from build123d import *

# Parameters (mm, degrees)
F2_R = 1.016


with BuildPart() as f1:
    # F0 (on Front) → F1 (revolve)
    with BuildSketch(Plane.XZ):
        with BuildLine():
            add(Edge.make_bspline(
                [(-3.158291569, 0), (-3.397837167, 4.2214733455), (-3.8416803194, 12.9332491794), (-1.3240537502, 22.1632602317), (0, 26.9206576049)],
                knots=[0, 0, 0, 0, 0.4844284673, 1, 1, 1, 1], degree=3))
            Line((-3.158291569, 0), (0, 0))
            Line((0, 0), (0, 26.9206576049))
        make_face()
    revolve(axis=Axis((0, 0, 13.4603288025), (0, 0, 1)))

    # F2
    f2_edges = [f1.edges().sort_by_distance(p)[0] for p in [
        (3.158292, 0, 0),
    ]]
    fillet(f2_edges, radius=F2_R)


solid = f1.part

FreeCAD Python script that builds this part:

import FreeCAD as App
import Part
import Sketcher

V = App.Vector
Q = App.Units.Quantity


def edges_at(feature, points):
    """Names of the edges that pass closest to the given points."""
    edges = feature.Shape.Edges
    near = lambda p: min(range(len(edges)), key=lambda i: edges[i].distToShape(Part.Vertex(*p))[0])
    return sorted({f"Edge{near(p) + 1}" for p in points})

doc = App.newDocument("Part")
body = doc.addObject("PartDesign::Body", "Body")

# Sketch on XZ plane
sketch1 = body.newObject("Sketcher::SketchObject", "Sketch")
sketch1.AttachmentSupport = (doc.getObject("XZ_Plane"), [""])
sketch1.MapMode = "FlatFace"
sketch1.addGeometry([
    Part.BSplineCurve([V(-3.158292, 0, 0), V(-3.397837, 4.221473, 0), V(-3.84168, 12.933249, 0), V(-1.324054, 22.16326, 0), V(0, 26.920658, 0)], [4, 1, 4], [0, 0.484428467, 1], False, 3, [1, 1, 1, 1, 1], False),
    Part.LineSegment(V(-3.158292, 0, 0), V(0, 0, 0)),
    Part.LineSegment(V(0, 0, 0), V(0, 26.920658, 0)),
], False)
sketch1.addConstraint([
    Sketcher.Constraint("Block", 0),
    Sketcher.Constraint("Coincident", 0, 1, 1, 1),
    Sketcher.Constraint("Coincident", 1, 2, 2, 1),
    Sketcher.Constraint("Coincident", 2, 2, 0, 2),
    Sketcher.Constraint("Horizontal", 1),
    Sketcher.Constraint("Vertical", 2),
])
revolution = body.newObject("PartDesign::Revolution", "Revolution")
revolution.Profile = sketch1
revolution.ReferenceAxis = (sketch1, ["V_Axis"])
revolution.Angle = 360
doc.recompute()

fillet = body.newObject("PartDesign::Fillet", "Fillet")
fillet.Base = (revolution, edges_at(revolution, [(3.158, 0, 0)]))
fillet.Radius = Q("0.04 in")

doc.recompute()
